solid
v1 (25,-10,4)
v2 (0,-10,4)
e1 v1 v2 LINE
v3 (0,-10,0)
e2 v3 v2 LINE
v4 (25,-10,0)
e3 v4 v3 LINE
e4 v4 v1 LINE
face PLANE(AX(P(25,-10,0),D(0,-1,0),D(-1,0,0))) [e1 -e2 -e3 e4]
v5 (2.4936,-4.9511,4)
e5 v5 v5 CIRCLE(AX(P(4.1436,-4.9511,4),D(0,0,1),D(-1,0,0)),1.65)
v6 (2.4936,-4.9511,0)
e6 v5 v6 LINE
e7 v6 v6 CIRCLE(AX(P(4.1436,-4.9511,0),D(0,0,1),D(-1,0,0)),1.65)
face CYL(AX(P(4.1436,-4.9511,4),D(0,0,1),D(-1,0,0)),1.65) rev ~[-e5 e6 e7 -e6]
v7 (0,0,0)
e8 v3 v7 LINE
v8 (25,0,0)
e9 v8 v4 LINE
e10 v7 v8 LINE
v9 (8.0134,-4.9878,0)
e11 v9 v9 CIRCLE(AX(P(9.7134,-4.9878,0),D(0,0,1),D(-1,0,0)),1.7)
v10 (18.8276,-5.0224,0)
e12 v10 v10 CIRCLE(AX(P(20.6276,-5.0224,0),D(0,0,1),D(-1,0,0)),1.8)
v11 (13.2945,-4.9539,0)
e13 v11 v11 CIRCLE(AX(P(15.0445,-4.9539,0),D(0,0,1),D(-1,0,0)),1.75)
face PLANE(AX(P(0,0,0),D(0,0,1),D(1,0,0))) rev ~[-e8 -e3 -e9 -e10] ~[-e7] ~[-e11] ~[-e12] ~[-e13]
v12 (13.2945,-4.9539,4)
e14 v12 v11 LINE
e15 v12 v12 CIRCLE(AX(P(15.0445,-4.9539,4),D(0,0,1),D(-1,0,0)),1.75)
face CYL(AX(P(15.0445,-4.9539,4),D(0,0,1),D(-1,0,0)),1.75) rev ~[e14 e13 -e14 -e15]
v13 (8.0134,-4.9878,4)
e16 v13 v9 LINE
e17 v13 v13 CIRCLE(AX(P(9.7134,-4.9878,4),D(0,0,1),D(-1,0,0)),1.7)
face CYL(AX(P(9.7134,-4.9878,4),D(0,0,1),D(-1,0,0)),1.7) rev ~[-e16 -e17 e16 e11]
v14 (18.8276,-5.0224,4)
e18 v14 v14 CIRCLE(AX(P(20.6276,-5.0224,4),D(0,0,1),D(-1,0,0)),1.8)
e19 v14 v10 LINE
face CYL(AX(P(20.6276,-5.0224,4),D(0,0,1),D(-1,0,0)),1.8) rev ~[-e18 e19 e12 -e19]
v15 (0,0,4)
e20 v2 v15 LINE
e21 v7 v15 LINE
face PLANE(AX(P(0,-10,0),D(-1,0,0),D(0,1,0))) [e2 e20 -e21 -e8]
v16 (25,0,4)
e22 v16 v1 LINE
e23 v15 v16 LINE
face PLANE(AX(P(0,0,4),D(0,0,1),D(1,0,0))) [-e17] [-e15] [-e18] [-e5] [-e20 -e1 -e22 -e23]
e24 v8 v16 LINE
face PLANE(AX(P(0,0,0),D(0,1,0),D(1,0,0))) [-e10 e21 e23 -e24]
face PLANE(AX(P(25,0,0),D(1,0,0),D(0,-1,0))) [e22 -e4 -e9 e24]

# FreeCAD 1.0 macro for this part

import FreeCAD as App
import Part
import Sketcher


def add_polygon(sketch, points):
    """Adds a closed chain of lines whose ends are joined by coincident constraints."""
    first, n = sketch.GeometryCount, len(points)
    for a, b in zip(points, points[1:] + points[:1]):
        sketch.addGeometry(Part.LineSegment(App.Vector(*a, 0), App.Vector(*b, 0)), False)
    for i in range(n):
        sketch.addConstraint(Sketcher.Constraint("Coincident", first + i, 2, first + (i + 1) % n, 1))

doc = App.newDocument("Part")
body = doc.addObject("PartDesign::Body", "Body")

# Sketch on XY plane
sketch1 = doc.addObject("Sketcher::SketchObject", "Sketch")
body.addObject(sketch1)
sketch1.AttachmentSupport = (doc.XY_Plane, [""])
sketch1.MapMode = "FlatFace"
add_polygon(sketch1, [(25, 0), (0, 0), (0, -10), (25, -10)])  # lines 0-3
sketch1.addConstraint(Sketcher.Constraint("Horizontal", 0))
sketch1.addConstraint(Sketcher.Constraint("Vertical", 1))
sketch1.addConstraint(Sketcher.Constraint("Horizontal", 2))
sketch1.addConstraint(Sketcher.Constraint("Vertical", 3))
sketch1.addConstraint(Sketcher.Constraint("Coincident", 0, 2, -1, 1))
sketch1.addConstraint(Sketcher.Constraint("DistanceX", 0, 2, 0, 1, 25.0))
sketch1.addConstraint(Sketcher.Constraint("DistanceY", 1, 2, 1, 1, 10.0))
pad1 = doc.addObject("PartDesign::Pad", "Pad")
body.addObject(pad1)
pad1.Profile = sketch1
pad1.Length = 4

# Sketch on XY plane
sketch2 = doc.addObject("Sketcher::SketchObject", "Sketch001")
body.addObject(sketch2)
sketch2.AttachmentSupport = (doc.XY_Plane, [""])
sketch2.MapMode = "FlatFace"
sketch2.AttachmentOffset = App.Placement(App.Vector(0, 0, 4), App.Rotation())
sketch2.addGeometry(Part.Circle(App.Vector(4.1, -5, 0), App.Vector(0, 0, 1), 1.6), False)
sketch2.addGeometry(Part.Circle(App.Vector(9.7, -5, 0), App.Vector(0, 0, 1), 1.7), False)
sketch2.addGeometry(Part.Circle(App.Vector(15, -5, 0), App.Vector(0, 0, 1), 1.8), False)
sketch2.addGeometry(Part.Circle(App.Vector(20.6, -5, 0), App.Vector(0, 0, 1), 1.8), False)
sketch2.addConstraint(Sketcher.Constraint("Diameter", 0, 3.3))
sketch2.addConstraint(Sketcher.Constraint("Diameter", 1, 3.4))
sketch2.addConstraint(Sketcher.Constraint("Diameter", 2, 3.5))
sketch2.addConstraint(Sketcher.Constraint("Diameter", 3, 3.6))
sketch2.addConstraint(Sketcher.Constraint("DistanceY", 0, 3, -1, 1, 4.951))
sketch2.addConstraint(Sketcher.Constraint("DistanceY", 2, 3, -1, 1, 4.954))
sketch2.addConstraint(Sketcher.Constraint("DistanceX", 1, 3, 2, 3, 5.331))
sketch2.addConstraint(Sketcher.Constraint("DistanceY", 1, 3, 2, 3, 0.034))
sketch2.addConstraint(Sketcher.Constraint("DistanceX", 0, 3, 2, 3, 10.901))
sketch2.addConstraint(Sketcher.Constraint("DistanceX", 2, 3, 3, 3, 5.583))
sketch2.addConstraint(Sketcher.Constraint("DistanceX", -1, 1, 0, 3, 4.1436))
sketch2.addConstraint(Sketcher.Constraint("DistanceY", 3, 3, -1, 1, 5.0224))
pocket1 = doc.addObject("PartDesign::Pocket", "Pocket")
body.addObject(pocket1)
pocket1.Profile = sketch2
pocket1.Length = 7

doc.recompute()
